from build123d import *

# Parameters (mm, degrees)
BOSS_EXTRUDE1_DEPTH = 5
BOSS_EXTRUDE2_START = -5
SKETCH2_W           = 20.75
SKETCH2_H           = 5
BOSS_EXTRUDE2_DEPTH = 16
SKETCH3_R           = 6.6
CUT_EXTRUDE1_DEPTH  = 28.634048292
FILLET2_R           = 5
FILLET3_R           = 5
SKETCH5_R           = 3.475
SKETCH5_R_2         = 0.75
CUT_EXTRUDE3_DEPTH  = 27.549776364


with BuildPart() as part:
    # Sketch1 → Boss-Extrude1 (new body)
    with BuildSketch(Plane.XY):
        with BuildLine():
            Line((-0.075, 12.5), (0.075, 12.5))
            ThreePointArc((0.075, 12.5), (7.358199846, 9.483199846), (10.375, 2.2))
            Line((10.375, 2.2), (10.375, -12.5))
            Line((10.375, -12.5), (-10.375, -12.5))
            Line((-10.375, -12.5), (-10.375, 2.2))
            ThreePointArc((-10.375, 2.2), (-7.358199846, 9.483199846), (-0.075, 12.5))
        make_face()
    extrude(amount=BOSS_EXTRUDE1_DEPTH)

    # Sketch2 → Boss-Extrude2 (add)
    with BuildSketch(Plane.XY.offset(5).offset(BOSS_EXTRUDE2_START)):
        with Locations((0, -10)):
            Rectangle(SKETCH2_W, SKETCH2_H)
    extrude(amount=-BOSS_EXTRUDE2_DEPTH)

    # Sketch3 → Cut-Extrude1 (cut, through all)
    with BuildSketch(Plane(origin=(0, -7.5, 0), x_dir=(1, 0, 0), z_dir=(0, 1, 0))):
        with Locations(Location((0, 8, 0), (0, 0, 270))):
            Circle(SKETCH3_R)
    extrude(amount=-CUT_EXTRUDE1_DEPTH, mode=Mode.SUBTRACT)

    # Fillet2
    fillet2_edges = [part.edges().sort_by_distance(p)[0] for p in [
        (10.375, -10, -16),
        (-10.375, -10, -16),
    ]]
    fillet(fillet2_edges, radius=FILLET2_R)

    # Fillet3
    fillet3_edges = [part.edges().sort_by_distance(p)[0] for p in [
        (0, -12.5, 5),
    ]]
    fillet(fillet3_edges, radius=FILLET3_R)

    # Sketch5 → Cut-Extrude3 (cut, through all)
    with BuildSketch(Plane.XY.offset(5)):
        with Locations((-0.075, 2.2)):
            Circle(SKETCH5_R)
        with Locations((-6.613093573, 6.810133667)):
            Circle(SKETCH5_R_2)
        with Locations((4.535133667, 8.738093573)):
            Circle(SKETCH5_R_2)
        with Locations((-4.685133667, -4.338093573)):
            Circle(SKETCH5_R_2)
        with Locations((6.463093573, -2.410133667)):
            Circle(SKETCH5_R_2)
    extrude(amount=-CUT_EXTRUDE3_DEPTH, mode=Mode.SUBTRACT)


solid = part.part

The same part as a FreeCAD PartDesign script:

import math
import FreeCAD as App
import Part
import Sketcher


def edges_at(feature, points):
    """Names of the edges that pass closest to the given points."""
    edges = feature.Shape.Edges
    near = lambda p: min(range(len(edges)), key=lambda i: edges[i].distToShape(Part.Vertex(*p))[0])
    return sorted({f"Edge{near(p) + 1}" for p in points})


def add_polygon(sketch, points):
    """Adds a closed chain of lines whose ends are joined by coincident constraints."""
    first, n = sketch.GeometryCount, len(points)
    for a, b in zip(points, points[1:] + points[:1]):
        sketch.addGeometry(Part.LineSegment(App.Vector(*a, 0), App.Vector(*b, 0)), False)
    for i in range(n):
        sketch.addConstraint(Sketcher.Constraint("Coincident", first + i, 2, first + (i + 1) % n, 1))

doc = App.newDocument("Part")
body = doc.addObject("PartDesign::Body", "Body")

sketch1 = body.newObject("Sketcher::SketchObject", "Sketch")
sketch1.AttachmentSupport = (doc.getObject("XY_Plane"), [""])
sketch1.MapMode = "FlatFace"
sketch1.addGeometry([
    Part.LineSegment(App.Vector(0.07, 12.5, 0), App.Vector(-0.07, 12.5, 0)),
    Part.ArcOfCircle(Part.Circle(App.Vector(-0.07, 2.2, 0), App.Vector(0, 0, 1), 10.3), math.radians(90), math.radians(180)),
    Part.LineSegment(App.Vector(-10.38, 2.2, 0), App.Vector(-10.38, -12.5, 0)),
    Part.LineSegment(App.Vector(-10.38, -12.5, 0), App.Vector(10.38, -12.5, 0)),
    Part.LineSegment(App.Vector(10.38, -12.5, 0), App.Vector(10.38, 2.2, 0)),
    Part.ArcOfCircle(Part.Circle(App.Vector(0.07, 2.2, 0), App.Vector(0, 0, 1), 10.3), math.radians(0), math.radians(90)),
], False)
sketch1.addConstraint([
    Sketcher.Constraint("Tangent", 0, 2, 1, 1),
    Sketcher.Constraint("Tangent", 1, 2, 2, 1),
    Sketcher.Constraint("Coincident", 2, 2, 3, 1),
    Sketcher.Constraint("Coincident", 3, 2, 4, 1),
    Sketcher.Constraint("Tangent", 4, 2, 5, 1),
    Sketcher.Constraint("Tangent", 5, 2, 0, 1),
    Sketcher.Constraint("Horizontal", 0),
    Sketcher.Constraint("Vertical", 2),
    Sketcher.Constraint("Horizontal", 3),
    Sketcher.Constraint("Vertical", 4),
    Sketcher.Constraint("Equal", 1, 5),
    Sketcher.Constraint("Radius", 1, 10.3),
    Sketcher.Constraint("DistanceY", 2, 2, 2, 1, 14.7),
    Sketcher.Constraint("DistanceX", 0, 2, 0, 1, 0.15),
    Sketcher.Constraint("DistanceY", -1, 1, 1, 3, 2.2),
    Sketcher.Constraint("DistanceX", 1, 3, -1, 1, 0.075),
])
pad1 = body.newObject("PartDesign::Pad", "Pad")
pad1.Profile = sketch1
pad1.Length = 5

sketch2 = body.newObject("Sketcher::SketchObject", "Sketch001")
sketch2.AttachmentSupport = (doc.getObject("XY_Plane"), [""])
sketch2.MapMode = "FlatFace"
add_polygon(sketch2, [(-10, -8), (-10, -12), (10, -12), (10, -8)])
sketch2.addConstraint([
    Sketcher.Constraint("Vertical", 0),
    Sketcher.Constraint("Horizontal", 1),
    Sketcher.Constraint("Vertical", 2),
    Sketcher.Constraint("Horizontal", 3),
    Sketcher.Constraint("DistanceY", 0, 2, 0, 1, 5.0),
    Sketcher.Constraint("DistanceX", 1, 1, 1, 2, 20.75),
    Sketcher.Constraint("DistanceY", 0, 2, -1, 1, 12.5),
    Sketcher.Constraint("DistanceX", 0, 2, -1, 1, 10.375),
])
pad2 = body.newObject("PartDesign::Pad", "Pad001")
pad2.Profile = sketch2
pad2.Length = 16
pad2.Reversed = True

sketch3 = body.newObject("Sketcher::SketchObject", "Sketch002")
sketch3.AttachmentSupport = (doc.getObject("XZ_Plane"), [""])
sketch3.MapMode = "FlatFace"
sketch3.AttachmentOffset = App.Placement(App.Vector(0, 0, 7.5), App.Rotation())
sketch3.addGeometry(Part.Circle(App.Vector(0, -8, 0), App.Vector(0, 0, 1), 7), False)
sketch3.addConstraint([
    Sketcher.Constraint("PointOnObject", 0, 3, -2),
    Sketcher.Constraint("Diameter", 0, 13.2),
    Sketcher.Constraint("DistanceY", 0, 3, -1, 1, 8.0),
])
pocket1 = body.newObject("PartDesign::Pocket", "Pocket")
pocket1.Profile = sketch3
pocket1.Type = "ThroughAll"
pocket1.Reversed = True
doc.recompute()

fillet = body.newObject("PartDesign::Fillet", "Fillet")
fillet.Base = (pocket1, edges_at(pocket1, [(10.375, -10, -16), (-10.375, -10, -16)]))
fillet.Radius = 5
doc.recompute()

fillet2 = body.newObject("PartDesign::Fillet", "Fillet001")
fillet2.Base = (fillet, edges_at(fillet, [(0, -12.5, 5)]))
fillet2.Radius = 5

sketch4 = body.newObject("Sketcher::SketchObject", "Sketch003")
sketch4.AttachmentSupport = (doc.getObject("XY_Plane"), [""])
sketch4.MapMode = "FlatFace"
sketch4.AttachmentOffset = App.Placement(App.Vector(0, 0, 5), App.Rotation())
sketch4.addGeometry([
    Part.Circle(App.Vector(-0.1, 2.2, 0), App.Vector(0, 0, 1), 3.5),
    Part.Circle(App.Vector(-6.6, 6.8, 0), App.Vector(0, 0, 1), 0.8),
    Part.Circle(App.Vector(4.5, 8.7, 0), App.Vector(0, 0, 1), 0.8),
    Part.Circle(App.Vector(-4.7, -4.3, 0), App.Vector(0, 0, 1), 0.8),
    Part.Circle(App.Vector(6.5, -2.4, 0), App.Vector(0, 0, 1), 0.8),
], False)
sketch4.addConstraint([
    Sketcher.Constraint("Equal", 1, 2),
    Sketcher.Constraint("Equal", 2, 3),
    Sketcher.Constraint("Equal", 3, 4),
    Sketcher.Constraint("Diameter", 1, 1.5),
    Sketcher.Constraint("Diameter", 0, 6.95),
    Sketcher.Constraint("DistanceY", -1, 1, 0, 3, 2.2),
    Sketcher.Constraint("DistanceX", 0, 3, -1, 1, 0.075),
    Sketcher.Constraint("DistanceY", 1, 3, 2, 3, 1.92796),
    Sketcher.Constraint("DistanceX", 1, 3, 3, 3, 1.92796),
    Sketcher.Constraint("DistanceX", 2, 3, 4, 3, 1.92796),
    Sketcher.Constraint("DistanceY", 3, 3, 4, 3, 1.92796),
    Sketcher.Constraint("DistanceX", 1, 3, -1, 1, 6.613094),
    Sketcher.Constraint("DistanceY", -1, 1, 1, 3, 6.810134),
    Sketcher.Constraint("DistanceX", -1, 1, 2, 3, 4.535134),
    Sketcher.Constraint("DistanceY", 3, 3, -1, 1, 4.338094),
])
pocket2 = body.newObject("PartDesign::Pocket", "Pocket001")
pocket2.Profile = sketch4
pocket2.Type = "ThroughAll"

doc.recompute()
